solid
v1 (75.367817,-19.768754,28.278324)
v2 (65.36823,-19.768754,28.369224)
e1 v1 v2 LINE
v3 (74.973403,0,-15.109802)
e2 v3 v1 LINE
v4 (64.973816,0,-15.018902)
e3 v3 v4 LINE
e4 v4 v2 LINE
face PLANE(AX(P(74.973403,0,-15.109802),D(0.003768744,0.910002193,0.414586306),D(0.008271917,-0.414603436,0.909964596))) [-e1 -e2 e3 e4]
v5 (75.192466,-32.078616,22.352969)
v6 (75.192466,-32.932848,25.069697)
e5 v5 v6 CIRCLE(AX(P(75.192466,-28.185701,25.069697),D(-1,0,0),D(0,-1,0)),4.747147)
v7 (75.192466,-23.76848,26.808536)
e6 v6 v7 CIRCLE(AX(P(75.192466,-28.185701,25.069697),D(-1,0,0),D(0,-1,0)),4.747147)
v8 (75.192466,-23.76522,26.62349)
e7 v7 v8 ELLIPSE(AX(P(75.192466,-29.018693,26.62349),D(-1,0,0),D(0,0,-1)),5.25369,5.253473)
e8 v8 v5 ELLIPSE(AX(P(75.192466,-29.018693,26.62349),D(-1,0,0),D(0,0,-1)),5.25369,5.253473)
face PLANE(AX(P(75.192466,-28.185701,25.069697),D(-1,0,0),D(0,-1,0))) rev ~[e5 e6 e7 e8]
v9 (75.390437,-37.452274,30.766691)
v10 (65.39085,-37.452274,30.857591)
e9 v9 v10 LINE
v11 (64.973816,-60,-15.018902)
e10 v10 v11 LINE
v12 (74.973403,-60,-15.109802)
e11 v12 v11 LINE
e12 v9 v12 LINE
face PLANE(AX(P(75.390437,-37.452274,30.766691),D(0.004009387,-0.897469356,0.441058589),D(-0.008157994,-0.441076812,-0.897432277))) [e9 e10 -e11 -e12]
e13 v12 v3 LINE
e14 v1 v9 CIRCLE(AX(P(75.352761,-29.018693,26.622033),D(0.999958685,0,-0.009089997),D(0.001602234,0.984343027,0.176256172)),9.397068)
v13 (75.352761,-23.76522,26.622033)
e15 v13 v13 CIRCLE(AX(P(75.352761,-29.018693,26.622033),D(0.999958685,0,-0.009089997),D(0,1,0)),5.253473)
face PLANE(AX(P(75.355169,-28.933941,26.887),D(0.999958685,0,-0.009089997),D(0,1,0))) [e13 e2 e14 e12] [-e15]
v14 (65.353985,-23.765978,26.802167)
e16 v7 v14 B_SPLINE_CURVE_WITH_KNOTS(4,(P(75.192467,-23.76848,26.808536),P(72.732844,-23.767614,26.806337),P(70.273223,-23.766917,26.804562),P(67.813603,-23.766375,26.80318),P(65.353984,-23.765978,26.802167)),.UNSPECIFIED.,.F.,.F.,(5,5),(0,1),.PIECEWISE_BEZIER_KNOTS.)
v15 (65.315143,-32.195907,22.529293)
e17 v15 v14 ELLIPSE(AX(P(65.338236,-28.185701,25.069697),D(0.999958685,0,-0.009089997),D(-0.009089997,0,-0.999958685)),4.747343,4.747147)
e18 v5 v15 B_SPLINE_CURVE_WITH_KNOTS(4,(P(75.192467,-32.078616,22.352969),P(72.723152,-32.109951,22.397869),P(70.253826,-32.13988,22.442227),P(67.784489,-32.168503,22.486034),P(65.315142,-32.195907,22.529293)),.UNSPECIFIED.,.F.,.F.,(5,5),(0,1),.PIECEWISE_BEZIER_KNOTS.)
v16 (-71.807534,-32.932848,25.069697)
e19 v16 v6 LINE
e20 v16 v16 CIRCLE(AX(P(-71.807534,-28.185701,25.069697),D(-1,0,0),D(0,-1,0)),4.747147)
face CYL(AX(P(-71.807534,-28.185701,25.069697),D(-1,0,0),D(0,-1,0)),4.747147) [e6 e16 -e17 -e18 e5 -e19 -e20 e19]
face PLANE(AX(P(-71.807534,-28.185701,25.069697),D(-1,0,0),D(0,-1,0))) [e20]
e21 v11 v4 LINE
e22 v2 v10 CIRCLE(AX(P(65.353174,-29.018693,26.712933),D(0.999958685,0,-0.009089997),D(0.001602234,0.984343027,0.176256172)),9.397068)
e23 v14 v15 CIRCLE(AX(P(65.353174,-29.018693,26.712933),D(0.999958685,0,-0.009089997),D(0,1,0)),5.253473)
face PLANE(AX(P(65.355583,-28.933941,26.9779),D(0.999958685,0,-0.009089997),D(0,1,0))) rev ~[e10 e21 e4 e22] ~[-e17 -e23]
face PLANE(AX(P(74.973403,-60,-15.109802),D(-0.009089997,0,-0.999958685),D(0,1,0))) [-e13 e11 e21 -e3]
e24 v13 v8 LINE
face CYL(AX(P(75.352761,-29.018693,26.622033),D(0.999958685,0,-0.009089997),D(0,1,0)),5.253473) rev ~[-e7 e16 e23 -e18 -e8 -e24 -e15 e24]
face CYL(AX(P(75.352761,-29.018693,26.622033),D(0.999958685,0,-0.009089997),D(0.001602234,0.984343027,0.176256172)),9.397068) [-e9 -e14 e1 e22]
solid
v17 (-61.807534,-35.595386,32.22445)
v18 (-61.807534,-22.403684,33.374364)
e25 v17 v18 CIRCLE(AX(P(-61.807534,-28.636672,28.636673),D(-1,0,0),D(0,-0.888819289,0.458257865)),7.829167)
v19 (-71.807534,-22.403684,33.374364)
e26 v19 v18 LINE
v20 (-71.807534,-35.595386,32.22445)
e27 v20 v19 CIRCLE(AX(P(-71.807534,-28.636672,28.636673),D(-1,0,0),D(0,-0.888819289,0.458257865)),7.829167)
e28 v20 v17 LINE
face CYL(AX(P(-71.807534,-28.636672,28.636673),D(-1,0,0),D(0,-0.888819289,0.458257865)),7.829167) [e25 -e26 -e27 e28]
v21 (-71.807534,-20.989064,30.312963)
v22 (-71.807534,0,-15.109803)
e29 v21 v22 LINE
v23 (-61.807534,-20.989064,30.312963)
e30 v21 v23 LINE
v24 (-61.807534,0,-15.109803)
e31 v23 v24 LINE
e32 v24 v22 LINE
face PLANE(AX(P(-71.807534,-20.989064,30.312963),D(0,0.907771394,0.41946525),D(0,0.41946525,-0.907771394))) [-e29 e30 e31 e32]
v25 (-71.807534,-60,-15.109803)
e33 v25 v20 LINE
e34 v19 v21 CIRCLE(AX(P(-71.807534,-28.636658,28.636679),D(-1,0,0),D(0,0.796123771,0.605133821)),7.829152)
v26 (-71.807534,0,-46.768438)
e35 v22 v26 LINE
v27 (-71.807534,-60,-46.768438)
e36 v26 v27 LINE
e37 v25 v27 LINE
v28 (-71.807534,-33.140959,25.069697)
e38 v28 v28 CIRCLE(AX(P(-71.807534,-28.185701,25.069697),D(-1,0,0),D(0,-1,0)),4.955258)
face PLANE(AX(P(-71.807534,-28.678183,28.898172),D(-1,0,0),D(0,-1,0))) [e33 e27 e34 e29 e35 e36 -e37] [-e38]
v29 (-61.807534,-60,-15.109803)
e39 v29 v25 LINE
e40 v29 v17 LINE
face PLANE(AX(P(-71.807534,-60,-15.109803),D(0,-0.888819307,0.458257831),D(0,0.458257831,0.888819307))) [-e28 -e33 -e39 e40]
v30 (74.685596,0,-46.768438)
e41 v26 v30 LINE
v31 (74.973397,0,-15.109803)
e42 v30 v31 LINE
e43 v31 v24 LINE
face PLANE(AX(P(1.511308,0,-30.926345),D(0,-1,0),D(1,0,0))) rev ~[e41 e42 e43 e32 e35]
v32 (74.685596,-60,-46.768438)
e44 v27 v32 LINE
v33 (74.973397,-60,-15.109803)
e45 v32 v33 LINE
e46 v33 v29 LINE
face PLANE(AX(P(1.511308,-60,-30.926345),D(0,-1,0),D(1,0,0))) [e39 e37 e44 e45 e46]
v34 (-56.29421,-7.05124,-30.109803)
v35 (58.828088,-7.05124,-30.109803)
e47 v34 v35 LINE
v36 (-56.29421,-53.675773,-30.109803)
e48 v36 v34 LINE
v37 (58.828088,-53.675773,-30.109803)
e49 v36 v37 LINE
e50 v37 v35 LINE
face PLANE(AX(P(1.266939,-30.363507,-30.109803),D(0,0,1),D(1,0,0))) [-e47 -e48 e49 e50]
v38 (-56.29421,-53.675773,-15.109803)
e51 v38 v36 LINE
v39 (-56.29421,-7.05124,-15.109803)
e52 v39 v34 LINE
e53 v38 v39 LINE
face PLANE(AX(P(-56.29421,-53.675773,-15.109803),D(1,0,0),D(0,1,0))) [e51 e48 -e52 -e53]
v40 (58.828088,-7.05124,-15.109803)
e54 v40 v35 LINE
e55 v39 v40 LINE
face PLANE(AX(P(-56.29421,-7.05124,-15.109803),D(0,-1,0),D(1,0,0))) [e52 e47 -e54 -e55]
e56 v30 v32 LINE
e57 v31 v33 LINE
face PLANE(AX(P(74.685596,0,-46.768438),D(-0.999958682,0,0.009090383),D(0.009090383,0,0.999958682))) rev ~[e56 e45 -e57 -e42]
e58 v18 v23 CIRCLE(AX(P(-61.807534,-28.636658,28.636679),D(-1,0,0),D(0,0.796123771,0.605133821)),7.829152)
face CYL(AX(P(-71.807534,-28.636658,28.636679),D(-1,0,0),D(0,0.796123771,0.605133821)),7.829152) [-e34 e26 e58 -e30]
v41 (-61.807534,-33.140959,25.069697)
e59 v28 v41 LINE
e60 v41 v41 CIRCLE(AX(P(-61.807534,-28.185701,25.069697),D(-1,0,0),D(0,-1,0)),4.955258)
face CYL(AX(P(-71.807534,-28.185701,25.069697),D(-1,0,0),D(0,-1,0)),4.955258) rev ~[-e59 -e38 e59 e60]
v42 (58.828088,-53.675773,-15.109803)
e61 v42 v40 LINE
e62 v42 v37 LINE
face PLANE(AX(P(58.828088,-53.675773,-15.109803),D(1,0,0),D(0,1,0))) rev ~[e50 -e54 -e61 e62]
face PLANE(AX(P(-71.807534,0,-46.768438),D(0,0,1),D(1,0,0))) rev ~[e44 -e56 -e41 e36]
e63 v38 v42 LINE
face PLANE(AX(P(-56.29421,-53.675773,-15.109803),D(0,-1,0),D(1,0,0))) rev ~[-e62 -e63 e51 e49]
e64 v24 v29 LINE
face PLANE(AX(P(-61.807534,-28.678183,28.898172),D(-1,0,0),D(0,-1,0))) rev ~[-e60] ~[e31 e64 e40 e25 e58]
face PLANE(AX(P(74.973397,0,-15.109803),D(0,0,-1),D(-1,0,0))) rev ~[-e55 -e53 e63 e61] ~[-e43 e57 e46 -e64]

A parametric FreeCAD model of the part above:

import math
import FreeCAD as App
import Part
import Sketcher

doc = App.newDocument("Part")
body = doc.addObject("PartDesign::Body", "Body")

# Sketch on XZ plane
sketch1 = body.newObject("Sketcher::SketchObject", "Sketch")
sketch1.AttachmentSupport = (doc.getObject("XZ_Plane"), [""])
sketch1.MapMode = "FlatFace"
sketch1.addGeometry([
    Part.LineSegment(App.Vector(75, -47, 0), App.Vector(75, -15, 0)),
    Part.LineSegment(App.Vector(75, -15, 0), App.Vector(-72, -15, 0)),
    Part.LineSegment(App.Vector(-72, -15, 0), App.Vector(-72, -47, 0)),
    Part.LineSegment(App.Vector(-72, -47, 0), App.Vector(75, -47, 0)),
], False)
sketch1.addConstraint([
    Sketcher.Constraint("Coincident", 0, 2, 1, 1),
    Sketcher.Constraint("Coincident", 1, 2, 2, 1),
    Sketcher.Constraint("Coincident", 2, 2, 3, 1),
    Sketcher.Constraint("Coincident", 3, 2, 0, 1),
    Sketcher.Constraint("Horizontal", 1),
    Sketcher.Constraint("Vertical", 2),
    Sketcher.Constraint("Horizontal", 3),
    Sketcher.Constraint("DistanceX", 1, 2, 1, 1, 146.780931),
    Sketcher.Constraint("DistanceX", 3, 1, 3, 2, 146.49313),
    Sketcher.Constraint("DistanceY", 2, 2, 2, 1, 31.658635),
    Sketcher.Constraint("DistanceY", 2, 2, -1, 1, 46.768438),
    Sketcher.Constraint("DistanceX", -1, 1, 0, 2, 74.973397),
])
pad1 = body.newObject("PartDesign::Pad", "Pad")
pad1.Profile = sketch1
pad1.Length = 60

# Sketch on YZ plane
sketch2 = body.newObject("Sketcher::SketchObject", "Sketch001")
sketch2.AttachmentSupport = (doc.getObject("YZ_Plane"), [""])
sketch2.MapMode = "FlatFace"
sketch2.AttachmentOffset = App.Placement(App.Vector(0, 0, -71.807534), App.Rotation())
sketch2.addGeometry([
    Part.ArcOfCircle(Part.Circle(App.Vector(-28.636672, 28.636673, 0), App.Vector(0, 0, 1), 7.829167), math.radians(37.238451), math.radians(152.725252)),  # 0
    Part.ArcOfCircle(Part.Circle(App.Vector(-28.636658, 28.636679, 0), App.Vector(0, 0, 1), 7.829152), math.radians(12.363198), math.radians(37.238472)),  # 1
    Part.LineSegment(App.Vector(-20.989064, 30.312963, 0), App.Vector(0, -15.109803, 0)),  # 2
    Part.LineSegment(App.Vector(0, -15.109803, 0), App.Vector(-60, -15.109803, 0)),  # 3
    Part.LineSegment(App.Vector(-60, -15.109803, 0), App.Vector(-35.595386, 32.22445, 0)),  # 4
], False)
sketch2.addConstraint([
    Sketcher.Constraint("Coincident", 0, 1, 1, 2),
    Sketcher.Constraint("Coincident", 1, 1, 2, 1),
    Sketcher.Constraint("Coincident", 2, 2, 3, 1),
    Sketcher.Constraint("Coincident", 3, 2, 4, 1),
    Sketcher.Constraint("Coincident", 4, 2, 0, 2),
    Sketcher.Constraint("Horizontal", 3),
    Sketcher.Constraint("PointOnObject", 2, 2, -2),
    Sketcher.Constraint("DistanceX", 3, 2, 3, 1, 60.0),
    Sketcher.Constraint("Radius", 0, 7.829167),
    Sketcher.Constraint("Radius", 1, 7.829152),
    Sketcher.Constraint("DistanceY", 1, 1, 0, 1, 3.061401),
    Sketcher.Constraint("Distance", 2, 50.037671),
    Sketcher.Constraint("DistanceX", 0, 3, -1, 1, 28.636672),
    Sketcher.Constraint("DistanceX", 1, 3, -1, 1, 28.636658),
    Sketcher.Constraint("DistanceY", -1, 1, 1, 3, 28.636679),
    Sketcher.Constraint("DistanceY", -1, 1, 4, 2, 32.22445),
    Sketcher.Constraint("DistanceY", 0, 3, 0, 1, 4.737691),
])
pad2 = body.newObject("PartDesign::Pad", "Pad001")
pad2.Profile = sketch2
pad2.Length = 10

# Sketch on XY plane
sketch3 = body.newObject("Sketcher::SketchObject", "Sketch002")
sketch3.AttachmentSupport = (doc.getObject("XY_Plane"), [""])
sketch3.MapMode = "FlatFace"
sketch3.AttachmentOffset = App.Placement(App.Vector(0, 0, -15.109803), App.Rotation())
sketch3.addGeometry([
    Part.LineSegment(App.Vector(-56, -7, 0), App.Vector(-56, -54, 0)),
    Part.LineSegment(App.Vector(-56, -54, 0), App.Vector(59, -54, 0)),
    Part.LineSegment(App.Vector(59, -54, 0), App.Vector(59, -7, 0)),
    Part.LineSegment(App.Vector(59, -7, 0), App.Vector(-56, -7, 0)),
], False)
sketch3.addConstraint([
    Sketcher.Constraint("Coincident", 0, 2, 1, 1),
    Sketcher.Constraint("Coincident", 1, 2, 2, 1),
    Sketcher.Constraint("Coincident", 2, 2, 3, 1),
    Sketcher.Constraint("Coincident", 3, 2, 0, 1),
    Sketcher.Constraint("Vertical", 0),
    Sketcher.Constraint("Horizontal", 1),
    Sketcher.Constraint("Vertical", 2),
    Sketcher.Constraint("Horizontal", 3),
    Sketcher.Constraint("DistanceX", 1, 1, 1, 2, 115.122299),
    Sketcher.Constraint("DistanceY", 0, 2, 0, 1, 46.624533),
    Sketcher.Constraint("DistanceX", 0, 2, -1, 1, 56.29421),
    Sketcher.Constraint("DistanceY", 2, 2, -1, 1, 7.05124),
])
pocket1 = body.newObject("PartDesign::Pocket", "Pocket")
pocket1.Profile = sketch3
pocket1.Length = 15

# Sketch on YZ plane
sketch4 = body.newObject("Sketcher::SketchObject", "Sketch003")
sketch4.AttachmentSupport = (doc.getObject("YZ_Plane"), [""])
sketch4.MapMode = "FlatFace"
sketch4.AttachmentOffset = App.Placement(App.Vector(0, 0, -71.807534), App.Rotation())
sketch4.addGeometry(Part.Circle(App.Vector(-28.2, 25.1, 0), App.Vector(0, 0, 1), 5), False)
sketch4.addConstraint([
    Sketcher.Constraint("Diameter", 0, 9.910516),
    Sketcher.Constraint("DistanceX", 0, 3, -1, 1, 28.185701),
    Sketcher.Constraint("DistanceY", -1, 1, 0, 3, 25.069697),
])
pocket2 = body.newObject("PartDesign::Pocket", "Pocket001")
pocket2.Profile = sketch4
pocket2.Length = 25
pocket2.Reversed = True
body2 = doc.addObject("PartDesign::Body", "Body001")

# Sketch on an angled plane
sketch5 = body2.newObject("Sketcher::SketchObject", "Sketch004")
sketch5.Placement = App.Placement(App.Vector(75.10455, 0, -0.682757), App.Rotation(App.Vector(0, 1, 0), App.Vector(0.009089997, 0, 0.999958685), App.Vector(0.999958685, 0, -0.009089997), "ZXY"))
sketch5.addGeometry([
    Part.ArcOfCircle(Part.Circle(App.Vector(-29, 27, 0), App.Vector(0, 0, 1), 9), math.radians(10), math.radians(154)),
    Part.LineSegment(App.Vector(-37, 31, 0), App.Vector(-60, -14, 0)),
    Part.LineSegment(App.Vector(-60, -14, 0), App.Vector(0, -14, 0)),
    Part.LineSegment(App.Vector(0, -14, 0), App.Vector(-20, 29, 0)),
], False)
sketch5.addConstraint([
    Sketcher.Constraint("Tangent", 0, 2, 1, 1),
    Sketcher.Constraint("Coincident", 1, 2, 2, 1),
    Sketcher.Constraint("Coincident", 2, 2, 3, 1),
    Sketcher.Constraint("Coincident", 3, 2, 0, 1),
    Sketcher.Constraint("Horizontal", 2),
    Sketcher.Constraint("PointOnObject", 2, 2, -2),
    Sketcher.Constraint("DistanceX", 2, 1, 2, 2, 60.0),
    Sketcher.Constraint("Radius", 0, 9.397068),
    Sketcher.Constraint("DistanceY", -1, 1, 0, 3, 27.305918),
    Sketcher.Constraint("DistanceY", 1, 2, -1, 1, 14.427641),
    Sketcher.Constraint("DistanceX", 0, 2, 0, 3, 8.433581),
    Sketcher.Constraint("DistanceX", 0, 3, 3, 2, 9.249939),
])
pad3 = body2.newObject("PartDesign::Pad", "Pad002")
pad3.Profile = sketch5
pad3.Length = 10
pad3.Reversed = True

# Sketch on an angled plane
sketch6 = body2.newObject("Sketcher::SketchObject", "Sketch005")
sketch6.Placement = App.Placement(App.Vector(75.10455, 0, -0.682757), App.Rotation(App.Vector(0, 1, 0), App.Vector(0.009089997, 0, 0.999958685), App.Vector(0.999958685, 0, -0.009089997), "ZXY"))
sketch6.addGeometry(Part.Circle(App.Vector(-29, 27, 0), App.Vector(0, 0, 1), 5), False)
sketch6.addConstraint([
    Sketcher.Constraint("Diameter", 0, 10.506946),
    Sketcher.Constraint("DistanceX", 0, 3, -1, 1, 29.018693),
    Sketcher.Constraint("DistanceY", -1, 1, 0, 3, 27.305918),
])
pocket3 = body2.newObject("PartDesign::Pocket", "Pocket002")
pocket3.Profile = sketch6
pocket3.Length = 25

# Sketch on YZ plane
sketch7 = body2.newObject("Sketcher::SketchObject", "Sketch006")
sketch7.AttachmentSupport = (doc.getObject("YZ_Plane001"), [""])
sketch7.MapMode = "FlatFace"
sketch7.AttachmentOffset = App.Placement(App.Vector(0, 0, -71.807534), App.Rotation())
sketch7.addGeometry(Part.Circle(App.Vector(-28.2, 25.1, 0), App.Vector(0, 0, 1), 4.7), False)
sketch7.addConstraint([
    Sketcher.Constraint("Diameter", 0, 9.494294),
    Sketcher.Constraint("DistanceX", 0, 3, -1, 1, 28.185701),
    Sketcher.Constraint("DistanceY", -1, 1, 0, 3, 25.069697),
])
pad4 = body2.newObject("PartDesign::Pad", "Pad003")
pad4.Profile = sketch7
pad4.Length = 147

doc.recompute()
